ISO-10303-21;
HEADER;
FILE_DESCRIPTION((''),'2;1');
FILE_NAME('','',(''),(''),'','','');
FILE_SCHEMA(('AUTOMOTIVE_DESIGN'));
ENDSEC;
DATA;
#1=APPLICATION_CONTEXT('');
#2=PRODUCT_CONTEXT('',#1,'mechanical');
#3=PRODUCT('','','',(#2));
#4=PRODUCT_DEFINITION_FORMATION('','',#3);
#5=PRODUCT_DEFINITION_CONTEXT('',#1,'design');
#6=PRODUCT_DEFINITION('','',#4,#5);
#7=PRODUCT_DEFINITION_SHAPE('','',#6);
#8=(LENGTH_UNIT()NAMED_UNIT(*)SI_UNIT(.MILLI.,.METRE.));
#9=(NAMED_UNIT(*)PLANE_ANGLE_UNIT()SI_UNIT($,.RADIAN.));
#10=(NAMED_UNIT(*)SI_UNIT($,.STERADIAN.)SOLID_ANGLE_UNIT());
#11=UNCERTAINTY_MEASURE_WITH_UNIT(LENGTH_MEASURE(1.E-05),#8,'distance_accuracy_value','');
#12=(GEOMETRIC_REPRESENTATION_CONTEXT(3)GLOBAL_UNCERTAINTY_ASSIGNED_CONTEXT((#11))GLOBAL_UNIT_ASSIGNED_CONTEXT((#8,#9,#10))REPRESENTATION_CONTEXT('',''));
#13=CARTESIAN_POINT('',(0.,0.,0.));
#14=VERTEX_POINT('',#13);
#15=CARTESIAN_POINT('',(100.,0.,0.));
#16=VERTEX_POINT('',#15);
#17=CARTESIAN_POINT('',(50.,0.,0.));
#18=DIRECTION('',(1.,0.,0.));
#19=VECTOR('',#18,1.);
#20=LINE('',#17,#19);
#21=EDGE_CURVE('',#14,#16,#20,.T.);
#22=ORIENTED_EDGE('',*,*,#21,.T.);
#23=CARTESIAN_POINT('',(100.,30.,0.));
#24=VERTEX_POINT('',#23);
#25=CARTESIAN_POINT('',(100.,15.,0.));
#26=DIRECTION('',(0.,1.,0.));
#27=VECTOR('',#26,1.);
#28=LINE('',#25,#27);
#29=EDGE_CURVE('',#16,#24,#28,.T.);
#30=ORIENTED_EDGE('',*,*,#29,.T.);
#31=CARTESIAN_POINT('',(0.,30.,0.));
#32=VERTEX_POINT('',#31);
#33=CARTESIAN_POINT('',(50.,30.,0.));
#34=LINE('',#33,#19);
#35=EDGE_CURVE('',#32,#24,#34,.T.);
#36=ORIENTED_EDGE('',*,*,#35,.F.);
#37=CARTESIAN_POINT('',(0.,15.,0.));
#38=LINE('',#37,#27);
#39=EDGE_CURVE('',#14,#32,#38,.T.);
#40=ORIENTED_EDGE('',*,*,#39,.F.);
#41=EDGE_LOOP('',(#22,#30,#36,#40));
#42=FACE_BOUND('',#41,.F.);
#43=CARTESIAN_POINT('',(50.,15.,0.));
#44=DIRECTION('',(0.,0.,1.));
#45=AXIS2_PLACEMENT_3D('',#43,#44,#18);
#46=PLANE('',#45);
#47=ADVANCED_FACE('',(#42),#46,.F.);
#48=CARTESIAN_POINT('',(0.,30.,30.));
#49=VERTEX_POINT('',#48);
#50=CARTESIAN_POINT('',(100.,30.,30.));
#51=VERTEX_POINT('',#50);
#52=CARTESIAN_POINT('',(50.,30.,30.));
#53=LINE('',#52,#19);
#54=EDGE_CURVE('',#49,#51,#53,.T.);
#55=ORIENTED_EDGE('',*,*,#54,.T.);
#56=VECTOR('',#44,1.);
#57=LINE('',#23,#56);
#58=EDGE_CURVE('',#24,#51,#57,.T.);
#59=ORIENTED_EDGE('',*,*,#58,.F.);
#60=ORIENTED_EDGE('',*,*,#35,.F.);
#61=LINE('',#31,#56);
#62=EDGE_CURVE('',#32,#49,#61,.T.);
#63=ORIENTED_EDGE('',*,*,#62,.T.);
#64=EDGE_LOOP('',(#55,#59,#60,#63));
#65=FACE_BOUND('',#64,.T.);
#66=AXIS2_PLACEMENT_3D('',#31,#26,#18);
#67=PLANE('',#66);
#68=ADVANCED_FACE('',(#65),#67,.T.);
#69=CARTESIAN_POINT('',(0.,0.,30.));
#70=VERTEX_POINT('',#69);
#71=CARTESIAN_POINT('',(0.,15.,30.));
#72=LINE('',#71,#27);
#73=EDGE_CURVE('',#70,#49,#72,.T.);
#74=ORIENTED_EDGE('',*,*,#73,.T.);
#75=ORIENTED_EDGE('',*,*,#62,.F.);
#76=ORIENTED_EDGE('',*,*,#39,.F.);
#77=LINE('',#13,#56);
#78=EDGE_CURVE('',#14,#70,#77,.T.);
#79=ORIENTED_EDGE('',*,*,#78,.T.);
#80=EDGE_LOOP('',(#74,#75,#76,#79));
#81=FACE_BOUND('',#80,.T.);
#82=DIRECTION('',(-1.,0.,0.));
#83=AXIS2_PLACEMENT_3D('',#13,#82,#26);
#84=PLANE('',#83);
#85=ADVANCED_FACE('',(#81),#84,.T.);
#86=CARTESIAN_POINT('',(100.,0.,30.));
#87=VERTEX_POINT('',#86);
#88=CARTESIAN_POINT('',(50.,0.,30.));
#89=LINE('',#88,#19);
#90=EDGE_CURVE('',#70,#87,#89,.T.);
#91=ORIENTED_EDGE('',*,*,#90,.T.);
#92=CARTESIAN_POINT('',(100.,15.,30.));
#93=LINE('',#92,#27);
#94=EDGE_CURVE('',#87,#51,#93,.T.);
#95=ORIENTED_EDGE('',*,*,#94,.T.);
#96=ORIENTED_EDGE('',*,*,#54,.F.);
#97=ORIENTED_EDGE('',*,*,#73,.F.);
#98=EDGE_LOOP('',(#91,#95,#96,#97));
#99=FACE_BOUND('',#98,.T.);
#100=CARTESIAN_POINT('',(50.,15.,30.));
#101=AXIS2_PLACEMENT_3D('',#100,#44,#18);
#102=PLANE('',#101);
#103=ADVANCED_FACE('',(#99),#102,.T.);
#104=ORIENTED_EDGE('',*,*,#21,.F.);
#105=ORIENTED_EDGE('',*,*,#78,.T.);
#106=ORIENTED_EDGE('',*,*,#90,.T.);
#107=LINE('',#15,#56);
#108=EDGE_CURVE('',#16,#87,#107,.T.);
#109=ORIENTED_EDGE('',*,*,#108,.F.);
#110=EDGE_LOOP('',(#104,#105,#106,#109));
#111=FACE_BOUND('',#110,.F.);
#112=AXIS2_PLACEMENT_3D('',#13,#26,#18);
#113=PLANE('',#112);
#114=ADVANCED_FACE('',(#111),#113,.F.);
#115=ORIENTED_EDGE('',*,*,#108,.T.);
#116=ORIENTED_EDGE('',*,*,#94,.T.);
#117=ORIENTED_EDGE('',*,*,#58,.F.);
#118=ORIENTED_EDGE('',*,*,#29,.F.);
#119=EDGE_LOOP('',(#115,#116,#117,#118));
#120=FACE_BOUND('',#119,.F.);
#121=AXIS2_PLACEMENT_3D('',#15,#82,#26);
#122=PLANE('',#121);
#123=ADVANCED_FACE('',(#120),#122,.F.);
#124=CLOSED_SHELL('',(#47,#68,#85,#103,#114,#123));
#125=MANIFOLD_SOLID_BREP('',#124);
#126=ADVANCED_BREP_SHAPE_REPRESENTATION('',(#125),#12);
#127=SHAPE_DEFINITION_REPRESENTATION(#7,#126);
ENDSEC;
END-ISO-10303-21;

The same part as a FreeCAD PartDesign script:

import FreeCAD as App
import Part
import Sketcher
from FreeCAD import Vector
Q = App.Units.Quantity

doc = App.newDocument("Part")
params = doc.addObject("Spreadsheet::Sheet", "Params")
for row, (alias, value) in enumerate([
    ("sketch1_width", "100 mm"),
    ("sketch1_height", "30 mm"),
    ("pad1_length", "30 mm"),
], start=1):
    params.set(f"A{row}", alias)
    params.set(f"B{row}", "=" + value)
    params.setAlias(f"B{row}", alias)

body = doc.addObject("PartDesign::Body", "Body")

sketch1 = body.newObject("Sketcher::SketchObject", "Sketch")
sketch1.AttachmentSupport = (doc.getObject("XY_Plane"), [""])
sketch1.MapMode = "FlatFace"
sketch1.addGeometry(Part.LineSegment(Vector(0, 30, 0), Vector(0, 0, 0)), False)
sketch1.addGeometry(Part.LineSegment(Vector(0, 0, 0), Vector(100, 0, 0)), False)
sketch1.addGeometry(Part.LineSegment(Vector(100, 0, 0), Vector(100, 30, 0)), False)
sketch1.addGeometry(Part.LineSegment(Vector(100, 30, 0), Vector(0, 30, 0)), False)
sketch1.addConstraint(Sketcher.Constraint("Coincident", 0, 2, 1, 1))
sketch1.addConstraint(Sketcher.Constraint("Coincident", 1, 2, 2, 1))
sketch1.addConstraint(Sketcher.Constraint("Coincident", 2, 2, 3, 1))
sketch1.addConstraint(Sketcher.Constraint("Coincident", 3, 2, 0, 1))
sketch1.addConstraint(Sketcher.Constraint("Vertical", 0))
sketch1.addConstraint(Sketcher.Constraint("Horizontal", 1))
sketch1.addConstraint(Sketcher.Constraint("Vertical", 2))
sketch1.addConstraint(Sketcher.Constraint("Horizontal", 3))
sketch1.addConstraint(Sketcher.Constraint("Coincident", 0, 2, -1, 1))
sketch1.addConstraint(Sketcher.Constraint("DistanceX", 1, 1, 1, 2, Q("100 mm")))
sketch1.addConstraint(Sketcher.Constraint("DistanceY", 0, 2, 0, 1, Q("30 mm")))
sketch1.setExpression("Constraints[9]", "Params.sketch1_width")
sketch1.setExpression("Constraints[10]", "Params.sketch1_height")
pad1 = body.newObject("PartDesign::Pad", "Pad")
pad1.Profile = sketch1
pad1.setExpression("Length", "Params.pad1_length")

doc.recompute()
